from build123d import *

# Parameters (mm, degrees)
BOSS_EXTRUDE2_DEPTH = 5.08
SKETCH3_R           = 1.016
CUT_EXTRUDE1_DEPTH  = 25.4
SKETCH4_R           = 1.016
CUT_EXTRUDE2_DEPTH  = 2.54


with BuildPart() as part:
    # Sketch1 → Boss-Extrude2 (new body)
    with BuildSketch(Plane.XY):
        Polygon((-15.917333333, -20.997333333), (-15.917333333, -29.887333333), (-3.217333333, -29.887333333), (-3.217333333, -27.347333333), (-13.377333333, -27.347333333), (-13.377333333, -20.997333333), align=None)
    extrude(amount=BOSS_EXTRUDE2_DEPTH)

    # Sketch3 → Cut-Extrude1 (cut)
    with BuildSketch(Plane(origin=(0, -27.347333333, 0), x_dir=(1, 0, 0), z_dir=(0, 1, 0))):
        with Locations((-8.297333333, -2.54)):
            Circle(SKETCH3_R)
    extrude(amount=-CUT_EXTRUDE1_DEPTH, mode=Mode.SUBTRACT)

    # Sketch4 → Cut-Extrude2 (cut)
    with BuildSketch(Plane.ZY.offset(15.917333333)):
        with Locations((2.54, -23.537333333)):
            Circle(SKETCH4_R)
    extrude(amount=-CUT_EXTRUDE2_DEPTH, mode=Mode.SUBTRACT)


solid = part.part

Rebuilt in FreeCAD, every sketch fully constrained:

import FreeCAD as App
import Part
import Sketcher
Q = App.Units.Quantity

doc = App.newDocument("Part")
body = doc.addObject("PartDesign::Body", "Body")

# Sketch on XY plane
sketch1 = body.newObject("Sketcher::SketchObject", "Sketch")
sketch1.AttachmentSupport = (doc.getObject("XY_Plane"), [""])
sketch1.MapMode = "FlatFace"
sketch1.addGeometry([
    Part.LineSegment(App.Vector(-15.9, -21, 0), App.Vector(-15.9, -29.9, 0)),  # 0
    Part.LineSegment(App.Vector(-15.9, -29.9, 0), App.Vector(-3.2, -29.9, 0)),  # 1
    Part.LineSegment(App.Vector(-3.2, -29.9, 0), App.Vector(-3.2, -27.3, 0)),  # 2
    Part.LineSegment(App.Vector(-3.2, -27.3, 0), App.Vector(-13.4, -27.3, 0)),  # 3
    Part.LineSegment(App.Vector(-13.4, -27.3, 0), App.Vector(-13.4, -21, 0)),  # 4
    Part.LineSegment(App.Vector(-13.4, -21, 0), App.Vector(-15.9, -21, 0)),  # 5
], False)
sketch1.addConstraint([
    Sketcher.Constraint("Coincident", 0, 2, 1, 1),
    Sketcher.Constraint("Coincident", 1, 2, 2, 1),
    Sketcher.Constraint("Coincident", 2, 2, 3, 1),
    Sketcher.Constraint("Coincident", 3, 2, 4, 1),
    Sketcher.Constraint("Coincident", 4, 2, 5, 1),
    Sketcher.Constraint("Coincident", 5, 2, 0, 1),
    Sketcher.Constraint("Vertical", 0),
    Sketcher.Constraint("Horizontal", 1),
    Sketcher.Constraint("Vertical", 2),
    Sketcher.Constraint("Horizontal", 3),
    Sketcher.Constraint("Vertical", 4),
    Sketcher.Constraint("Horizontal", 5),
    Sketcher.Constraint("Equal", 5, 2),
    Sketcher.Constraint("DistanceX", 1, 1, 1, 2, Q("0.5 in")),
    Sketcher.Constraint("DistanceX", 3, 2, 3, 1, Q("0.4 in")),
    Sketcher.Constraint("DistanceY", 0, 2, 0, 1, Q("0.35 in")),
    Sketcher.Constraint("DistanceX", 0, 2, -1, 1, 15.917333),
    Sketcher.Constraint("DistanceY", 0, 2, -1, 1, 29.887333),
])
pad1 = body.newObject("PartDesign::Pad", "Pad")
pad1.Profile = sketch1
pad1.Length = Q("0.2 in")

# Sketch on XZ plane
sketch2 = body.newObject("Sketcher::SketchObject", "Sketch001")
sketch2.AttachmentSupport = (doc.getObject("XZ_Plane"), [""])
sketch2.MapMode = "FlatFace"
sketch2.AttachmentOffset = App.Placement(App.Vector(0, 0, 27.347333), App.Rotation())
sketch2.addGeometry(Part.Circle(App.Vector(-8.3, 2.5, 0), App.Vector(0, 0, 1), 1), False)
sketch2.addConstraint([
    Sketcher.Constraint("Diameter", 0, Q("0.08 in")),
    Sketcher.Constraint("DistanceY", -1, 1, 0, 3, Q("0.1 in")),
    Sketcher.Constraint("DistanceX", 0, 3, -1, 1, 8.297333),
])
pocket1 = body.newObject("PartDesign::Pocket", "Pocket")
pocket1.Profile = sketch2
pocket1.Length = Q("1 in")
pocket1.Reversed = True

# Sketch on YZ plane
sketch3 = body.newObject("Sketcher::SketchObject", "Sketch002")
sketch3.AttachmentSupport = (doc.getObject("YZ_Plane"), [""])
sketch3.MapMode = "FlatFace"
sketch3.AttachmentOffset = App.Placement(App.Vector(0, 0, -15.917333), App.Rotation())
sketch3.addGeometry(Part.Circle(App.Vector(-23.5, 2.5, 0), App.Vector(0, 0, 1), 1), False)
sketch3.addConstraint([
    Sketcher.Constraint("Diameter", 0, Q("0.08 in")),
    Sketcher.Constraint("DistanceY", -1, 1, 0, 3, Q("0.1 in")),
    Sketcher.Constraint("DistanceX", 0, 3, -1, 1, 23.537333),
])
pocket2 = body.newObject("PartDesign::Pocket", "Pocket001")
pocket2.Profile = sketch3
pocket2.Length = Q("0.1 in")
pocket2.Reversed = True

doc.recompute()
